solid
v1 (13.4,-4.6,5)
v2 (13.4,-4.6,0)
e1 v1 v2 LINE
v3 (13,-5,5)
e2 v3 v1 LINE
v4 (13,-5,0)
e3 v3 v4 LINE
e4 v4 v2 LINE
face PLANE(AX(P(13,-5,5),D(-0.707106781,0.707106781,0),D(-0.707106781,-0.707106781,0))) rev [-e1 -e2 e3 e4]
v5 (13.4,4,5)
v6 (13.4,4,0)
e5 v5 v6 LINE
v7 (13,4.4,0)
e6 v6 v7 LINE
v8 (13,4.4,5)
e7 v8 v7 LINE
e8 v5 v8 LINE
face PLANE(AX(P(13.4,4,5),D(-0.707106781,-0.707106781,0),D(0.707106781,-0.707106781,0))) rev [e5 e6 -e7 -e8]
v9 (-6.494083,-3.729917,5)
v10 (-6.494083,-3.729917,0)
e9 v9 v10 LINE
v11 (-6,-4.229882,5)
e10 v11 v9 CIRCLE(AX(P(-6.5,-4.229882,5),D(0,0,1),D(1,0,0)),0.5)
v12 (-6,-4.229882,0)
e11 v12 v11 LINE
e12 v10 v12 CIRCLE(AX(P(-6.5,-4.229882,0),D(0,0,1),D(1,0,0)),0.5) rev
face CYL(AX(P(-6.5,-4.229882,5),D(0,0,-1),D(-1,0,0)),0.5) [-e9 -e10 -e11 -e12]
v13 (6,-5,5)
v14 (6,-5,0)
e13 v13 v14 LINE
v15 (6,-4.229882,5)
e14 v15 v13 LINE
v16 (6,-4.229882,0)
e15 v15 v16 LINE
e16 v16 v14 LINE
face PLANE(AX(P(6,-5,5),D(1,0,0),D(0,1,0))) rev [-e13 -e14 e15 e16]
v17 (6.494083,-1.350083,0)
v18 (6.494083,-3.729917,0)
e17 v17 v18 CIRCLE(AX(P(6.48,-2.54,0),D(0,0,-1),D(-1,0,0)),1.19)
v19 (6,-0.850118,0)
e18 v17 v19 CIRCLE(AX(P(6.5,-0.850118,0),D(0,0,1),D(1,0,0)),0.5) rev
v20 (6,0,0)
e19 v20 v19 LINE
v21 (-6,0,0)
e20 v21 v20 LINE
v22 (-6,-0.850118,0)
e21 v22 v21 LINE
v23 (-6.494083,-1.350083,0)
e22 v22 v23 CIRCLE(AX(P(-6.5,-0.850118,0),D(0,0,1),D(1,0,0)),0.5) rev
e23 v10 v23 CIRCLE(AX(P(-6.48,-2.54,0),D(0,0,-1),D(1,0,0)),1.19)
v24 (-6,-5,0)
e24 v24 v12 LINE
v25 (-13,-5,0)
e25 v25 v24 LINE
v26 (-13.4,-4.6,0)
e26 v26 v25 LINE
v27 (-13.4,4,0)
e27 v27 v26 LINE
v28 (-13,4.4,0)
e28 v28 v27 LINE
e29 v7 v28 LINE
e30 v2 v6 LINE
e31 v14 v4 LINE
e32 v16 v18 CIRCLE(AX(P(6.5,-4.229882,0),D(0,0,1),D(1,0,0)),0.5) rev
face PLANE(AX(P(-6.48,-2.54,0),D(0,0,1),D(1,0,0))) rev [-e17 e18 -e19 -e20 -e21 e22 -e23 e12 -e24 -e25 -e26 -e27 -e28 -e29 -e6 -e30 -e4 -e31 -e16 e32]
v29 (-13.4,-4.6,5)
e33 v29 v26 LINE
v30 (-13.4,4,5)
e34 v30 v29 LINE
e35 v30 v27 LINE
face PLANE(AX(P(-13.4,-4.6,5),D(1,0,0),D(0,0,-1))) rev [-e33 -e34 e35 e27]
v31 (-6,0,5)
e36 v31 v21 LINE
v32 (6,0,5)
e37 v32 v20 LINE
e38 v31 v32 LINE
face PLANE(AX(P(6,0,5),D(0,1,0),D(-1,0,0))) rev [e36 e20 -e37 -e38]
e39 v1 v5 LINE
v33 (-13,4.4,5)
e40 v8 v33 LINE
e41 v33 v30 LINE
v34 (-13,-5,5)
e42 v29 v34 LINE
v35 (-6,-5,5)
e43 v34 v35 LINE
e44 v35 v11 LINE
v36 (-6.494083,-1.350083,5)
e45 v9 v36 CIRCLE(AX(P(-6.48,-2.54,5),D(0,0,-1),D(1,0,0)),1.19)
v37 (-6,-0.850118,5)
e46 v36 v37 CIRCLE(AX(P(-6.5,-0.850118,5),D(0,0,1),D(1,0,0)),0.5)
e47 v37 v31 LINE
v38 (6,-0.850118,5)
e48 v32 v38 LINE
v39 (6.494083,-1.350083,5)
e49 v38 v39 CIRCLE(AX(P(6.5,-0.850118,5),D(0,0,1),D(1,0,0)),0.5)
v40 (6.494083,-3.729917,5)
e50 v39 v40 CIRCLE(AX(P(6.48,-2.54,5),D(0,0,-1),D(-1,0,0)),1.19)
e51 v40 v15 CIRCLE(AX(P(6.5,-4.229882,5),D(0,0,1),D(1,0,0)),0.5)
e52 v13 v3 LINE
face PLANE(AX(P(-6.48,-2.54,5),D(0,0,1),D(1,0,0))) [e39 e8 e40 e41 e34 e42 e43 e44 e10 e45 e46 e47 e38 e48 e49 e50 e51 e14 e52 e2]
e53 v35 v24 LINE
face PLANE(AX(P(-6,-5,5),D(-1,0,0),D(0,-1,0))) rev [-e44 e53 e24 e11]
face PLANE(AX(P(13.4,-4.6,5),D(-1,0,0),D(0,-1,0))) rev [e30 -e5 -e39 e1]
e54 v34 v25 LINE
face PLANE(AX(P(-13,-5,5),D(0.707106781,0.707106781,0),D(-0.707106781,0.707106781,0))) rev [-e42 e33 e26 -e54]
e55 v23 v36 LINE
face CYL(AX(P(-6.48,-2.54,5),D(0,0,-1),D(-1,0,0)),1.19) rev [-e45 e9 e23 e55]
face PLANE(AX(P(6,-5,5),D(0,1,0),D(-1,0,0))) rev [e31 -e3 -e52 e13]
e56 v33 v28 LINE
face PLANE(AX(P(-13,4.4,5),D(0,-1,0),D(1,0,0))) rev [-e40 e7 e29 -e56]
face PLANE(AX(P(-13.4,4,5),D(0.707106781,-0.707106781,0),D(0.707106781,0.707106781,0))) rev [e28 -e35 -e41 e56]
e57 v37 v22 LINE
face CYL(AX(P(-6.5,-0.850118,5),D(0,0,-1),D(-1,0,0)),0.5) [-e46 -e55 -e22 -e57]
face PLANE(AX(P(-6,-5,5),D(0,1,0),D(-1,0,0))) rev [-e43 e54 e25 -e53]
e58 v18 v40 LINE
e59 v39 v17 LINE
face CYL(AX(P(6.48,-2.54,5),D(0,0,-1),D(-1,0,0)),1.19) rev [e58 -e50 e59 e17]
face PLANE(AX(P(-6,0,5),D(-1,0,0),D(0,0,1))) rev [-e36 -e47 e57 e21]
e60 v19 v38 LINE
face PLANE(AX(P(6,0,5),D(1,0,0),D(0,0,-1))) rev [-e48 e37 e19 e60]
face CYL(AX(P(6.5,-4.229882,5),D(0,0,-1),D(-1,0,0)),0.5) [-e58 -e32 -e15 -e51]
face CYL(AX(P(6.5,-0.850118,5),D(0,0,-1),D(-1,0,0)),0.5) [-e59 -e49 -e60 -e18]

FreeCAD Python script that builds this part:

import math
import FreeCAD as App
import Part
import Sketcher
from FreeCAD import Vector
Q = App.Units.Quantity


def edges_at(feature, points):
    """Names of the edges that pass closest to the given points."""
    edges = feature.Shape.Edges
    near = lambda p: min(range(len(edges)), key=lambda i: edges[i].distToShape(Part.Vertex(*p))[0])
    return sorted({f"Edge{near(p) + 1}" for p in points})

doc = App.newDocument("Part")
params = doc.addObject("Spreadsheet::Sheet", "Params")
for row, (alias, value) in enumerate([
    ("sketch1_width", "7 mm"),
    ("sketch1_width2", "12 mm"),
    ("sketch1_radius", "1.19 mm"),
    ("sketch1_height", "8.6 mm"),
    ("pad1_length", "5 mm"),
    ("fillet_radius", "0.5 mm"),
], start=1):
    params.set(f"A{row}", alias)
    params.set(f"B{row}", "=" + value)
    params.setAlias(f"B{row}", alias)

body = doc.addObject("PartDesign::Body", "Body")

# Sketch on XY plane
sketch1 = body.newObject("Sketcher::SketchObject", "Sketch")
sketch1.AttachmentSupport = (doc.getObject("XY_Plane"), [""])
sketch1.MapMode = "FlatFace"
sketch1.addGeometry(Part.LineSegment(Vector(-13, -5, 0), Vector(-6, -5, 0)), False)
sketch1.addGeometry(Part.LineSegment(Vector(-6, -5, 0), Vector(-6, -3.6, 0)), False)
sketch1.addGeometry(Part.ArcOfCircle(Part.Circle(Vector(-6.5, -2.5, 0), Vector(0, 0, 1), 1.2), math.radians(66), math.radians(294)), False)
sketch1.addGeometry(Part.LineSegment(Vector(-6, -1.5, 0), Vector(-6, 0, 0)), False)
sketch1.addGeometry(Part.LineSegment(Vector(-6, 0, 0), Vector(6, 0, 0)), False)
sketch1.addGeometry(Part.LineSegment(Vector(6, 0, 0), Vector(6, -1.5, 0)), False)
sketch1.addGeometry(Part.ArcOfCircle(Part.Circle(Vector(6.5, -2.5, 0), Vector(0, 0, 1), 1.2), math.radians(-114), math.radians(114)), False)
sketch1.addGeometry(Part.LineSegment(Vector(6, -3.6, 0), Vector(6, -5, 0)), False)
sketch1.addGeometry(Part.LineSegment(Vector(6, -5, 0), Vector(13, -5, 0)), False)
sketch1.addGeometry(Part.LineSegment(Vector(13, -5, 0), Vector(13.4, -4.6, 0)), False)
sketch1.addGeometry(Part.LineSegment(Vector(13.4, -4.6, 0), Vector(13.4, 4, 0)), False)
sketch1.addGeometry(Part.LineSegment(Vector(13.4, 4, 0), Vector(13, 4.4, 0)), False)
sketch1.addGeometry(Part.LineSegment(Vector(13, 4.4, 0), Vector(-13, 4.4, 0)), False)
sketch1.addGeometry(Part.LineSegment(Vector(-13, 4.4, 0), Vector(-13.4, 4, 0)), False)
sketch1.addGeometry(Part.LineSegment(Vector(-13.4, 4, 0), Vector(-13.4, -4.6, 0)), False)
sketch1.addGeometry(Part.LineSegment(Vector(-13.4, -4.6, 0), Vector(-13, -5, 0)), False)
sketch1.addConstraint(Sketcher.Constraint("Coincident", 0, 2, 1, 1))
sketch1.addConstraint(Sketcher.Constraint("Coincident", 1, 2, 2, 2))
sketch1.addConstraint(Sketcher.Constraint("Coincident", 2, 1, 3, 1))
sketch1.addConstraint(Sketcher.Constraint("Coincident", 3, 2, 4, 1))
sketch1.addConstraint(Sketcher.Constraint("Coincident", 4, 2, 5, 1))
sketch1.addConstraint(Sketcher.Constraint("Coincident", 5, 2, 6, 2))
sketch1.addConstraint(Sketcher.Constraint("Coincident", 6, 1, 7, 1))
sketch1.addConstraint(Sketcher.Constraint("Coincident", 7, 2, 8, 1))
sketch1.addConstraint(Sketcher.Constraint("Coincident", 8, 2, 9, 1))
sketch1.addConstraint(Sketcher.Constraint("Coincident", 9, 2, 10, 1))
sketch1.addConstraint(Sketcher.Constraint("Coincident", 10, 2, 11, 1))
sketch1.addConstraint(Sketcher.Constraint("Coincident", 11, 2, 12, 1))
sketch1.addConstraint(Sketcher.Constraint("Coincident", 12, 2, 13, 1))
sketch1.addConstraint(Sketcher.Constraint("Coincident", 13, 2, 14, 1))
sketch1.addConstraint(Sketcher.Constraint("Coincident", 14, 2, 15, 1))
sketch1.addConstraint(Sketcher.Constraint("Coincident", 15, 2, 0, 1))
sketch1.addConstraint(Sketcher.Constraint("Horizontal", 0))
sketch1.addConstraint(Sketcher.Constraint("Vertical", 1))
sketch1.addConstraint(Sketcher.Constraint("Vertical", 3))
sketch1.addConstraint(Sketcher.Constraint("Horizontal", 4))
sketch1.addConstraint(Sketcher.Constraint("Vertical", 5))
sketch1.addConstraint(Sketcher.Constraint("Vertical", 7))
sketch1.addConstraint(Sketcher.Constraint("Horizontal", 8))
sketch1.addConstraint(Sketcher.Constraint("Vertical", 10))
sketch1.addConstraint(Sketcher.Constraint("Horizontal", 12))
sketch1.addConstraint(Sketcher.Constraint("Vertical", 14))
sketch1.addConstraint(Sketcher.Constraint("Equal", 2, 6))
sketch1.addConstraint(Sketcher.Constraint("Symmetric", 3, 2, 4, 2, -1, 1))
sketch1.addConstraint(Sketcher.Constraint("Symmetric", 2, 3, 6, 3, -2))
sketch1.addConstraint(Sketcher.Constraint("Symmetric", 0, 2, 7, 2, -2))
sketch1.addConstraint(Sketcher.Constraint("Symmetric", 10, 2, 13, 2, -2))
sketch1.addConstraint(Sketcher.Constraint("Perpendicular", 9, 11))
sketch1.addConstraint(Sketcher.Constraint("Perpendicular", 11, 13))
sketch1.addConstraint(Sketcher.Constraint("Perpendicular", 13, 15))
sketch1.addConstraint(Sketcher.Constraint("Horizontal", 9, 2, 14, 2))
sketch1.addConstraint(Sketcher.Constraint("Vertical", 1, 2, 2, 1))
sketch1.addConstraint(Sketcher.Constraint("Vertical", 8, 2, 11, 2))
sketch1.addConstraint(Sketcher.Constraint("Vertical", 12, 2, 15, 2))
sketch1.addConstraint(Sketcher.Constraint("DistanceX", 0, 1, 0, 2, Q("7 mm")))
sketch1.addConstraint(Sketcher.Constraint("DistanceX", 4, 1, 4, 2, Q("12 mm")))
sketch1.addConstraint(Sketcher.Constraint("Radius", 2, Q("1.19 mm")))
sketch1.addConstraint(Sketcher.Constraint("DistanceY", 10, 1, 10, 2, Q("8.6 mm")))
sketch1.addConstraint(Sketcher.Constraint("DistanceY", 0, 2, -1, 1, Q("5 mm")))
sketch1.addConstraint(Sketcher.Constraint("DistanceY", -1, 1, 10, 2, Q("4 mm")))
sketch1.addConstraint(Sketcher.Constraint("DistanceX", 2, 3, -1, 1, Q("6.48 mm")))
sketch1.addConstraint(Sketcher.Constraint("DistanceY", 2, 3, -1, 1, Q("2.54 mm")))
sketch1.setExpression("Constraints[38]", "Params.sketch1_width")
sketch1.setExpression("Constraints[39]", "Params.sketch1_width2")
sketch1.setExpression("Constraints[40]", "Params.sketch1_radius")
sketch1.setExpression("Constraints[41]", "Params.sketch1_height")
pad1 = body.newObject("PartDesign::Pad", "Pad")
pad1.Profile = sketch1
pad1.setExpression("Length", "Params.pad1_length")
doc.recompute()

fillet = body.newObject("PartDesign::Fillet", "Fillet")
fillet.Base = (pad1, edges_at(pad1, [
    (6, -3.629, 2.5),
    (6, -1.451, 2.5),
    (-6, -1.451, 2.5),
    (-6, -3.629, 2.5),
]))
fillet.setExpression("Radius", "Params.fillet_radius")

doc.recompute()
